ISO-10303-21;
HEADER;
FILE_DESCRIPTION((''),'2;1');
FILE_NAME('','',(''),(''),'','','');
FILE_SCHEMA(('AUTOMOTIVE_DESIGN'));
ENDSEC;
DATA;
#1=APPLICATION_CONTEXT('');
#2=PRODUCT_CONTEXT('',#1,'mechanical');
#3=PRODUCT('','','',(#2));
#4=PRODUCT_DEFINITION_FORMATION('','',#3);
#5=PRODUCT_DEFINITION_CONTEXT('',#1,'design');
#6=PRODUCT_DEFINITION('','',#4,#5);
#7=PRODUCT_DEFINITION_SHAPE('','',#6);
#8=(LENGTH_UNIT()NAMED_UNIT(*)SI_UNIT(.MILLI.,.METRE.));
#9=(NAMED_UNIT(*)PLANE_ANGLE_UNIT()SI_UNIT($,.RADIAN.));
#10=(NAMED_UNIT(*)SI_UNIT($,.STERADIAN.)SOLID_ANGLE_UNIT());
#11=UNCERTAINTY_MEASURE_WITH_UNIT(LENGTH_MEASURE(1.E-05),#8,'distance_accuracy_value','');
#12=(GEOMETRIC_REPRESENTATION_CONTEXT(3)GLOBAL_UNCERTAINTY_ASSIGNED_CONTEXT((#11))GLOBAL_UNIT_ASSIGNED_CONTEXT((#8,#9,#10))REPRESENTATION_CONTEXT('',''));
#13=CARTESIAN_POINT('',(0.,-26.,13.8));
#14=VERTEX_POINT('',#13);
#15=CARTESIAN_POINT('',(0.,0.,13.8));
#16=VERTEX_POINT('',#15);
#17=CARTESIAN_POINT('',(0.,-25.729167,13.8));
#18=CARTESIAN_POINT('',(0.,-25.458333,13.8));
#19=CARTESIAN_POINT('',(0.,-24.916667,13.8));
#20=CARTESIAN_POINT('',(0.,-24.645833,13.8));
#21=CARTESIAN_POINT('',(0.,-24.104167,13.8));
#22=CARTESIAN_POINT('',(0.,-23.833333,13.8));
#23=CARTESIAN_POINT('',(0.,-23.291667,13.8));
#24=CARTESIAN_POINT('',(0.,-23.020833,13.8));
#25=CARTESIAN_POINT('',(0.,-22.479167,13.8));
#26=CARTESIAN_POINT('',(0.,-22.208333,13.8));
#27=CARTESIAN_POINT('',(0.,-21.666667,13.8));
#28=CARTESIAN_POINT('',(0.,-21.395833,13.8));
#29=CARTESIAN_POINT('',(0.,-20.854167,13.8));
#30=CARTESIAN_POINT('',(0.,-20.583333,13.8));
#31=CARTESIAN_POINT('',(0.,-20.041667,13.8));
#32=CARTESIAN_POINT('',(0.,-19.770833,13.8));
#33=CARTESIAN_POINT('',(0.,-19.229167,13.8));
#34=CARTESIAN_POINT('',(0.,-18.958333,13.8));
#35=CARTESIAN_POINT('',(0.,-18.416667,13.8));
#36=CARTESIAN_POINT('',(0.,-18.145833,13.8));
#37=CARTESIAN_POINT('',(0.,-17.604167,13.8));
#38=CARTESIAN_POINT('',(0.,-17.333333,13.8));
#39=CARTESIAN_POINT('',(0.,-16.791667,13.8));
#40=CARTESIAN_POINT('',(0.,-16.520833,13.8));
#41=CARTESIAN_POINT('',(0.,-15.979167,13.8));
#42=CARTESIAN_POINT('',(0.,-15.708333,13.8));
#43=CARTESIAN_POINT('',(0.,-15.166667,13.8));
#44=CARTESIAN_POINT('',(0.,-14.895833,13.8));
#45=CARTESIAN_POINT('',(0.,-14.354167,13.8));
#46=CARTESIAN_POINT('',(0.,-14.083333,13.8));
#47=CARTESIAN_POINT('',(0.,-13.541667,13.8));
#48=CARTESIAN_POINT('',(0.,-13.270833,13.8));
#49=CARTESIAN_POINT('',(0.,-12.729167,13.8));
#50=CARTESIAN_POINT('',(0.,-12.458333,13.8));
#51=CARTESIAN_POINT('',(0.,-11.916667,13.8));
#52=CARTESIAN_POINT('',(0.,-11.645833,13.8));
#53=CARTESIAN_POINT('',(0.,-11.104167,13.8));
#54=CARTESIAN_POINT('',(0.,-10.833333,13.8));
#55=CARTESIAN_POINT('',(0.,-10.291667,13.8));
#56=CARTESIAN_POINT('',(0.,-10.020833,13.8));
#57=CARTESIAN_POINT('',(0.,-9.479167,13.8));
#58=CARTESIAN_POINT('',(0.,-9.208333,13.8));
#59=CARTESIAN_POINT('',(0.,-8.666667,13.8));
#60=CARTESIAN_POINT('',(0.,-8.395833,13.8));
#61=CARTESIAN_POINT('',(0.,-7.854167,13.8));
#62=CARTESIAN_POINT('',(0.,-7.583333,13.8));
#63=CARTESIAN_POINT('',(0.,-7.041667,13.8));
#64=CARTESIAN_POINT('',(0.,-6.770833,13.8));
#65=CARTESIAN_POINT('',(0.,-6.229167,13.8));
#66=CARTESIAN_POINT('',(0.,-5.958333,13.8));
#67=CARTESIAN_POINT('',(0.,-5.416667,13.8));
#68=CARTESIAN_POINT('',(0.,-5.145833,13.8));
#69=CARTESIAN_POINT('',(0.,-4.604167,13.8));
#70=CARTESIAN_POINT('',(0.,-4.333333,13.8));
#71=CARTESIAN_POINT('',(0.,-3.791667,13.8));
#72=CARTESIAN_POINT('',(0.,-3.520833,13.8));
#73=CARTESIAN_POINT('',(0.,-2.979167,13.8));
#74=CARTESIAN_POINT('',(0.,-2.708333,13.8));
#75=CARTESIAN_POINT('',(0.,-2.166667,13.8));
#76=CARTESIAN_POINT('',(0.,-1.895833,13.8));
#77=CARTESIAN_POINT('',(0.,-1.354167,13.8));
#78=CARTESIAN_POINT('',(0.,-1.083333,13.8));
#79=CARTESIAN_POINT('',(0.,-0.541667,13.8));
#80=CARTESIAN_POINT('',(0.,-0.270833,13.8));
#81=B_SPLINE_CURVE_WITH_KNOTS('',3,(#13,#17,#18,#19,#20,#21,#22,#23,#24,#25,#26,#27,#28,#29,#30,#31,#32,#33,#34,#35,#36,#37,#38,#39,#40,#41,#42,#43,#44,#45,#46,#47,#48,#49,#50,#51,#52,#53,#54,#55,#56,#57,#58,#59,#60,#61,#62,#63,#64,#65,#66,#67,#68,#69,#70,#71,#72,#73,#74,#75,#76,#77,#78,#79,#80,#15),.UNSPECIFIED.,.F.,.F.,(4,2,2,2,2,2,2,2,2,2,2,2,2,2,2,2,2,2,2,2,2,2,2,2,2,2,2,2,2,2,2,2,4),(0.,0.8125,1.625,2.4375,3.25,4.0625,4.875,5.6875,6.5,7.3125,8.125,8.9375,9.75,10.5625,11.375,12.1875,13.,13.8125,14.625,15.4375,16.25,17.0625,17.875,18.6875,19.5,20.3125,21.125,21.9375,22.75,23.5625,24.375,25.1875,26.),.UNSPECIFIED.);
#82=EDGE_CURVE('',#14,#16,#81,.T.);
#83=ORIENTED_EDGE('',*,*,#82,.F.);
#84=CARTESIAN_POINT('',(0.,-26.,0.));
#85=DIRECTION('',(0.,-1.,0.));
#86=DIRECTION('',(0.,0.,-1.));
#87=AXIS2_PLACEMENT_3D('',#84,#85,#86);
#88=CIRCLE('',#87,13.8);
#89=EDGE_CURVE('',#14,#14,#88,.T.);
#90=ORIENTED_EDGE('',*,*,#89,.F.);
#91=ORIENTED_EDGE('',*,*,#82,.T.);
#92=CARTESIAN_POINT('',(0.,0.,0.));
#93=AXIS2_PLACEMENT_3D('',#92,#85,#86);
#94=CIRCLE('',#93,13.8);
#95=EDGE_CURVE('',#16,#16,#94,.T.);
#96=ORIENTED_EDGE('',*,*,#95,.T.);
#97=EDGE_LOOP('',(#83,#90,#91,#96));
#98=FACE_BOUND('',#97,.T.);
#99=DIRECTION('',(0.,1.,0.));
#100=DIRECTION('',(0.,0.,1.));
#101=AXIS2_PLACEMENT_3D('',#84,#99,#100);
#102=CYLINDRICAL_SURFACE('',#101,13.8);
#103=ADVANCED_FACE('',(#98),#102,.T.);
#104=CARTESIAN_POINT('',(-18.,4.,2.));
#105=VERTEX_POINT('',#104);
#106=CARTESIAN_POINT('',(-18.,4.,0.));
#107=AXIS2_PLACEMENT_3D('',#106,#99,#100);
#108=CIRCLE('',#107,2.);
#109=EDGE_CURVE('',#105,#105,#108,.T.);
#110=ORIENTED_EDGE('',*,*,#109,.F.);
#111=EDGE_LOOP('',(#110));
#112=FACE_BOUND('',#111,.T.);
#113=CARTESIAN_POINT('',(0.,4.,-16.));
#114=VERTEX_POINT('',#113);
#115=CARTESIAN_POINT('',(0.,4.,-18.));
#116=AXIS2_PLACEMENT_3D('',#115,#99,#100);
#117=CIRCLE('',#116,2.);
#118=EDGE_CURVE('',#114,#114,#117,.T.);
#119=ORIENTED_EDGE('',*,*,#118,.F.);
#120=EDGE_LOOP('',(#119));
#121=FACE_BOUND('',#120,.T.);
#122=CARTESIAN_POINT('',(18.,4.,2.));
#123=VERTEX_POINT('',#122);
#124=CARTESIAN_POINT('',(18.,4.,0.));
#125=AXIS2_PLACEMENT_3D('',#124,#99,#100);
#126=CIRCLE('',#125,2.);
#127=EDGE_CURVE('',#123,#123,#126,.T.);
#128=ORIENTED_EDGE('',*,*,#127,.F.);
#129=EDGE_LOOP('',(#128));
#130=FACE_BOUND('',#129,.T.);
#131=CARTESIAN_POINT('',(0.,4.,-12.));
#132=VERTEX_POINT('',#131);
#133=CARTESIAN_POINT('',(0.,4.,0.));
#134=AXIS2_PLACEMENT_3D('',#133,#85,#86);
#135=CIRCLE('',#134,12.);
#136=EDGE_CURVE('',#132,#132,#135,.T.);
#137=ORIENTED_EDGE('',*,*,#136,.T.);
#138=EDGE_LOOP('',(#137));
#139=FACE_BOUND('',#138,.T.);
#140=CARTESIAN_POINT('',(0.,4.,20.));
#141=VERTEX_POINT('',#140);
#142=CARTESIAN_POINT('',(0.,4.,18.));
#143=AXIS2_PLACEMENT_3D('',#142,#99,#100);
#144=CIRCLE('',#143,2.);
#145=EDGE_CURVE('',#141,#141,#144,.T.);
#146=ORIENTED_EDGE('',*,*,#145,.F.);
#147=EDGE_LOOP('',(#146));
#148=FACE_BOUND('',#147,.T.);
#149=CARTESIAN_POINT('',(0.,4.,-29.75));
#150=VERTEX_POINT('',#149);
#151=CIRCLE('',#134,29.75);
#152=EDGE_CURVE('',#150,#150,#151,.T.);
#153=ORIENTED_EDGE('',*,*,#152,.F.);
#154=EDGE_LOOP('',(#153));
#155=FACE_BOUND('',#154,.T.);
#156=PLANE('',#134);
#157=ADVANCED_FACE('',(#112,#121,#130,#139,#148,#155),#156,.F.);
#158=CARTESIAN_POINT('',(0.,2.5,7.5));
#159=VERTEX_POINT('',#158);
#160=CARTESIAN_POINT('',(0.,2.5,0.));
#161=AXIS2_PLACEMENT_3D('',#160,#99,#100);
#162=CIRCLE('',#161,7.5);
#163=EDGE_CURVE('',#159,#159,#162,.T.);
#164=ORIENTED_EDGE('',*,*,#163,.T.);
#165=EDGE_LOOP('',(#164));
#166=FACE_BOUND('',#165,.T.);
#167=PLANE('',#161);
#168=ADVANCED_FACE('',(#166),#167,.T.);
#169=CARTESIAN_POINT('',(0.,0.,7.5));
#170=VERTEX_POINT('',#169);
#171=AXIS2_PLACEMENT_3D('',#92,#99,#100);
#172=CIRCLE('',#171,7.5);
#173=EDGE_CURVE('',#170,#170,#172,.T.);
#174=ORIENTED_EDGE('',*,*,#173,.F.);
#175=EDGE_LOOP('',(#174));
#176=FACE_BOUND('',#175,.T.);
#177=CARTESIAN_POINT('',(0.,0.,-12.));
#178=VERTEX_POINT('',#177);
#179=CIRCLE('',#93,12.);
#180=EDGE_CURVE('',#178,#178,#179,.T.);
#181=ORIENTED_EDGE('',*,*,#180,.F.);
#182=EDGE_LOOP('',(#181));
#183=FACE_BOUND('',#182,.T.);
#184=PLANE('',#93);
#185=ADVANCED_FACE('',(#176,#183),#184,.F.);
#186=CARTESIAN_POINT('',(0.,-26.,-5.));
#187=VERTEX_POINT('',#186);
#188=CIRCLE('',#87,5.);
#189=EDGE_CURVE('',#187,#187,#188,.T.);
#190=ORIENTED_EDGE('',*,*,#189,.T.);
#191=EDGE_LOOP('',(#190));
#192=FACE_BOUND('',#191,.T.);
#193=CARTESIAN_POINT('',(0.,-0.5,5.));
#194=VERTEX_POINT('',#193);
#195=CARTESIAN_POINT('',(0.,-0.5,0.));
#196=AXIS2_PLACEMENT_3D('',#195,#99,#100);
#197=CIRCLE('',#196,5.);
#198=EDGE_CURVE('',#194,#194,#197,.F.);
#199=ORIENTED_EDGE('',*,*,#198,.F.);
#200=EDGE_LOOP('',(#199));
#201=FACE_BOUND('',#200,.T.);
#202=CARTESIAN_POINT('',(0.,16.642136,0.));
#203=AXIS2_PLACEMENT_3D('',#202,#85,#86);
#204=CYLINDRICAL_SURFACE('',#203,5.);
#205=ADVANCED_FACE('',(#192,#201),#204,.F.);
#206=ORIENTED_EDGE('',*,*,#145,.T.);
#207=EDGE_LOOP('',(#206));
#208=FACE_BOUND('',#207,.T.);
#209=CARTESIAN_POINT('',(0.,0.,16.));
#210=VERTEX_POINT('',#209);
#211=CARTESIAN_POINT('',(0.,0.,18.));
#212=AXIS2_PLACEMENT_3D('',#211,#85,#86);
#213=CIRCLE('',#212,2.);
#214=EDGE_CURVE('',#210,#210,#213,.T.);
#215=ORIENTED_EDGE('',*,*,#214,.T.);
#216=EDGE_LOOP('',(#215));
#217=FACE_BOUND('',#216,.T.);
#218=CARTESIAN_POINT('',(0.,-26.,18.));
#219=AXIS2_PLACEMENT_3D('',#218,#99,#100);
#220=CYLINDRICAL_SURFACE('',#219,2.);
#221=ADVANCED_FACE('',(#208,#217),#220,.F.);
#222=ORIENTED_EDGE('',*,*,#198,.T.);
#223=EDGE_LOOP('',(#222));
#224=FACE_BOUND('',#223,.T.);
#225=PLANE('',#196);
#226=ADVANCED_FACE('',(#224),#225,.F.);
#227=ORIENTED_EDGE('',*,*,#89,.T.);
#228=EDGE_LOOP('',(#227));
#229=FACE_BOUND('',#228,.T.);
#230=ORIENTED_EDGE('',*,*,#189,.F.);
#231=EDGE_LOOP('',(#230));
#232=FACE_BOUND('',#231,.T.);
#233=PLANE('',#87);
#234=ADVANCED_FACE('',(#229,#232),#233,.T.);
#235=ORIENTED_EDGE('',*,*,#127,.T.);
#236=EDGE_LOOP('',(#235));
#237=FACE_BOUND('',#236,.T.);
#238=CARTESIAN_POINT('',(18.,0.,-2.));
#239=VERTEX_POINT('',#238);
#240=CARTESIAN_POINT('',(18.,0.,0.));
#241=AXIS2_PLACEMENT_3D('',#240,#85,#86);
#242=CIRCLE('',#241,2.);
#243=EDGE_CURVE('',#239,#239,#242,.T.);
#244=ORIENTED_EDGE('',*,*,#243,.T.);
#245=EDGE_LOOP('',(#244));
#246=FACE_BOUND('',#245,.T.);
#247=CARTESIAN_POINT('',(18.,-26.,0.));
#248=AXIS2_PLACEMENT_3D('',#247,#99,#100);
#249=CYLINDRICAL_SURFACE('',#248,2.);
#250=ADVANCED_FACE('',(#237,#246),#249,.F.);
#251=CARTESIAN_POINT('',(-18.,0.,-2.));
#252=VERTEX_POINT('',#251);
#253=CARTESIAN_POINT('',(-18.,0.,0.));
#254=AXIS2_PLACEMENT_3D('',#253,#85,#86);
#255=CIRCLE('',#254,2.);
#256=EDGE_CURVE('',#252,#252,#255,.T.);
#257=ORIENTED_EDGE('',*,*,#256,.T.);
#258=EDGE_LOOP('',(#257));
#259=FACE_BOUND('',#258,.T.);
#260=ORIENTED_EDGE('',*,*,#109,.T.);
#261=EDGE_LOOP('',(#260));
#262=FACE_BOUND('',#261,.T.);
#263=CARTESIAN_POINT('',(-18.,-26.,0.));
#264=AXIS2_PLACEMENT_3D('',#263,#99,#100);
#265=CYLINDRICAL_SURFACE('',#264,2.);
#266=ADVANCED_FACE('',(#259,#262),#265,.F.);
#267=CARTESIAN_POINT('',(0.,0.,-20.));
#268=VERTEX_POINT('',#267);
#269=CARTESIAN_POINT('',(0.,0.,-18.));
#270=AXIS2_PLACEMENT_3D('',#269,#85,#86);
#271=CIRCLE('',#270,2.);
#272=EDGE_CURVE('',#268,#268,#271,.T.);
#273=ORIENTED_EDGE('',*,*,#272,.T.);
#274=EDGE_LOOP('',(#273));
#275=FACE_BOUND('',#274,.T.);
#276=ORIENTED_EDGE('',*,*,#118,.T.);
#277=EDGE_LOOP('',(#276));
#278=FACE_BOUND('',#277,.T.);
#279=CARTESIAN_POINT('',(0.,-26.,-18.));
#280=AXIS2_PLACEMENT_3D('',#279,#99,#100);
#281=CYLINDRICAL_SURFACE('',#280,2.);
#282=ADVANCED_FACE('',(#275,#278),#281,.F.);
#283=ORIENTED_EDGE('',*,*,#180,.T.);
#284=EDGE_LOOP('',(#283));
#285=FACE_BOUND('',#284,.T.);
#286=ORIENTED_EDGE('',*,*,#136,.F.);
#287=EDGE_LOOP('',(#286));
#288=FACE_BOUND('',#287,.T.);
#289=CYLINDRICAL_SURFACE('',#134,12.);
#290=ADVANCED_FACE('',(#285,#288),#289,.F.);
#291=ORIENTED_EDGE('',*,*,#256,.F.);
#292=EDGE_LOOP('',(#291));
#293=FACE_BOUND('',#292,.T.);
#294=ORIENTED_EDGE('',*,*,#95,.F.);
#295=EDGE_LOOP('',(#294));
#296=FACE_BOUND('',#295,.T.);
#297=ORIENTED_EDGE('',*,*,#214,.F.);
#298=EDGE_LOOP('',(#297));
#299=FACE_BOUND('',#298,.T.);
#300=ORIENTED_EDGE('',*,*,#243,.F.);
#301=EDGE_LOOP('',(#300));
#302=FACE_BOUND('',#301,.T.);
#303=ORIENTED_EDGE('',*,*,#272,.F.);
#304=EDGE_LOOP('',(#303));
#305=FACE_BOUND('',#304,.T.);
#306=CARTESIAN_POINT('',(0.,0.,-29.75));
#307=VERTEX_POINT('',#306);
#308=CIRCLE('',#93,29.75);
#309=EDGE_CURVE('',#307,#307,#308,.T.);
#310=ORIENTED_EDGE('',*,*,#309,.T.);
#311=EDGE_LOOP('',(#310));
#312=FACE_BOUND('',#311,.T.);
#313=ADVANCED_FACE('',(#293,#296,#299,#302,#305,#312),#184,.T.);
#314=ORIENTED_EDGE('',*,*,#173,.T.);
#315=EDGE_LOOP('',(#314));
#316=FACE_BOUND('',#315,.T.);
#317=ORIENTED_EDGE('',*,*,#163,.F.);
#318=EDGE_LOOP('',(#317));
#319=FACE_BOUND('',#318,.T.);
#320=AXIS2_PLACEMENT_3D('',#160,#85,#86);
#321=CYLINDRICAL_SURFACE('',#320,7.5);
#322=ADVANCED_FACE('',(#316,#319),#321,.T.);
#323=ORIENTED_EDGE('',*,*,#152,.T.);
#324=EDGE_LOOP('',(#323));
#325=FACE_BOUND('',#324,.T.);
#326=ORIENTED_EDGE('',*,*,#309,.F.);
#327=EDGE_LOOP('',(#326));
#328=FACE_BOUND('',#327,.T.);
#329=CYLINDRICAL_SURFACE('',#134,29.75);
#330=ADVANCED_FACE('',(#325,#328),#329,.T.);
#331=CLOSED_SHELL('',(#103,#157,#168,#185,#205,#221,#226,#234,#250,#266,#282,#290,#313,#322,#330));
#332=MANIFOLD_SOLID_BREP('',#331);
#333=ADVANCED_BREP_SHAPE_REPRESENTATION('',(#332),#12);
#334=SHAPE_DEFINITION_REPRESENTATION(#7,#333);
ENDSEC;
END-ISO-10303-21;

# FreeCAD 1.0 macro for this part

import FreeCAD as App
import Part
import Sketcher
from FreeCAD import Vector
Q = App.Units.Quantity

doc = App.newDocument("Part")
params = doc.addObject("Spreadsheet::Sheet", "Params")
for row, (alias, value) in enumerate([
    ("sketch1_diameter", "15 mm"),
    ("pad1_length", "2.5 mm"),
    ("sketch2_diameter", "24 mm"),
    ("sketch2_diameter2", "59.5 mm"),
    ("pad2_length", "4 mm"),
    ("sketch3_diameter", "27.6 mm"),
    ("pad3_length", "26 mm"),
    ("sketch4_diameter", "10 mm"),
    ("pocket1_length", "25.5 mm"),
    ("sketch5_diameter", "4 mm"),
], start=1):
    params.set(f"A{row}", alias)
    params.set(f"B{row}", "=" + value)
    params.setAlias(f"B{row}", alias)

body = doc.addObject("PartDesign::Body", "Body")

# Sketch on XZ plane
sketch1 = body.newObject("Sketcher::SketchObject", "Sketch")
sketch1.AttachmentSupport = (doc.getObject("XZ_Plane"), [""])
sketch1.MapMode = "FlatFace"
sketch1.addGeometry(Part.Circle(Vector(0, 0, 0), Vector(0, 0, 1), 8), False)
sketch1.addConstraint([
    Sketcher.Constraint("Coincident", 0, 3, -1, 1),
    Sketcher.Constraint("Diameter", 0, Q("15 mm")),
])
sketch1.setExpression("Constraints[1]", "Params.sketch1_diameter")
pad1 = body.newObject("PartDesign::Pad", "Pad")
pad1.Profile = sketch1
pad1.setExpression("Length", "Params.pad1_length")
pad1.Reversed = True
body2 = doc.addObject("PartDesign::Body", "Body001")

# Sketch on XZ plane
sketch2 = body2.newObject("Sketcher::SketchObject", "Sketch001")
sketch2.AttachmentSupport = (doc.getObject("XZ_Plane001"), [""])
sketch2.MapMode = "FlatFace"
sketch2.addGeometry([
    Part.Circle(Vector(0, 0, 0), Vector(0, 0, 1), 30),
    Part.Circle(Vector(0, 0, 0), Vector(0, 0, 1), 12),
], False)
sketch2.addConstraint([
    Sketcher.Constraint("Coincident", 0, 3, -1, 1),
    Sketcher.Constraint("Coincident", 1, 3, -1, 1),
    Sketcher.Constraint("Diameter", 1, Q("24 mm")),
    Sketcher.Constraint("Diameter", 0, Q("59.5 mm")),
])
sketch2.setExpression("Constraints[2]", "Params.sketch2_diameter")
sketch2.setExpression("Constraints[3]", "Params.sketch2_diameter2")
pad2 = body2.newObject("PartDesign::Pad", "Pad001")
pad2.Profile = sketch2
pad2.setExpression("Length", "Params.pad2_length")
pad2.Reversed = True
body.AllowCompound = True
doc.recompute()

boolean = body.newObject("PartDesign::Boolean", "Boolean")
boolean.Type = "Fuse"
boolean.addObjects([body2])

# Sketch on XZ plane
sketch3 = body.newObject("Sketcher::SketchObject", "Sketch002")
sketch3.AttachmentSupport = (doc.getObject("XZ_Plane"), [""])
sketch3.MapMode = "FlatFace"
sketch3.addGeometry(Part.Circle(Vector(0, 0, 0), Vector(0, 0, 1), 14), False)
sketch3.addConstraint([
    Sketcher.Constraint("Coincident", 0, 3, -1, 1),
    Sketcher.Constraint("Diameter", 0, Q("27.6 mm")),
])
sketch3.setExpression("Constraints[1]", "Params.sketch3_diameter")
pad3 = body.newObject("PartDesign::Pad", "Pad002")
pad3.Profile = sketch3
pad3.setExpression("Length", "Params.pad3_length")

# Sketch on XZ plane
sketch4 = body.newObject("Sketcher::SketchObject", "Sketch003")
sketch4.AttachmentSupport = (doc.getObject("XZ_Plane"), [""])
sketch4.MapMode = "FlatFace"
sketch4.AttachmentOffset = App.Placement(Vector(0, 0, 26), App.Rotation())
sketch4.addGeometry(Part.Circle(Vector(0, 0, 0), Vector(0, 0, 1), 5), False)
sketch4.addConstraint([
    Sketcher.Constraint("Coincident", 0, 3, -1, 1),
    Sketcher.Constraint("Diameter", 0, Q("10 mm")),
])
sketch4.setExpression("Constraints[1]", "Params.sketch4_diameter")
pocket1 = body.newObject("PartDesign::Pocket", "Pocket")
pocket1.Profile = sketch4
pocket1.setExpression("Length", "Params.pocket1_length")

# Sketch on XZ plane
sketch5 = body.newObject("Sketcher::SketchObject", "Sketch004")
sketch5.AttachmentSupport = (doc.getObject("XZ_Plane"), [""])
sketch5.MapMode = "FlatFace"
sketch5.AttachmentOffset = App.Placement(Vector(0, 0, -4), App.Rotation())
sketch5.addGeometry([
    Part.Circle(Vector(0, -18, 0), Vector(0, 0, 1), 2),
    Part.Circle(Vector(18, 0, 0), Vector(0, 0, 1), 2),
    Part.Circle(Vector(0, 18, 0), Vector(0, 0, 1), 2),
    Part.Circle(Vector(-18, 0, 0), Vector(0, 0, 1), 2),
], False)
sketch5.addConstraint([
    Sketcher.Constraint("Equal", 0, 1),
    Sketcher.Constraint("Equal", 1, 2),
    Sketcher.Constraint("Equal", 2, 3),
    Sketcher.Constraint("Symmetric", 0, 3, 2, 3, -1, 1),
    Sketcher.Constraint("Symmetric", 1, 3, 3, 3, -1, 1),
    Sketcher.Constraint("PointOnObject", 0, 3, -2),
    Sketcher.Constraint("PointOnObject", 1, 3, -1),
    Sketcher.Constraint("Diameter", 0, Q("4 mm")),
    Sketcher.Constraint("DistanceY", 0, 3, -1, 1, Q("18 mm")),
    Sketcher.Constraint("DistanceX", -1, 1, 1, 3, Q("18 mm")),
])
sketch5.setExpression("Constraints[7]", "Params.sketch5_diameter")
pocket2 = body.newObject("PartDesign::Pocket", "Pocket001")
pocket2.Profile = sketch5
pocket2.Type = "ThroughAll"
pocket2.Reversed = True

doc.recompute()
